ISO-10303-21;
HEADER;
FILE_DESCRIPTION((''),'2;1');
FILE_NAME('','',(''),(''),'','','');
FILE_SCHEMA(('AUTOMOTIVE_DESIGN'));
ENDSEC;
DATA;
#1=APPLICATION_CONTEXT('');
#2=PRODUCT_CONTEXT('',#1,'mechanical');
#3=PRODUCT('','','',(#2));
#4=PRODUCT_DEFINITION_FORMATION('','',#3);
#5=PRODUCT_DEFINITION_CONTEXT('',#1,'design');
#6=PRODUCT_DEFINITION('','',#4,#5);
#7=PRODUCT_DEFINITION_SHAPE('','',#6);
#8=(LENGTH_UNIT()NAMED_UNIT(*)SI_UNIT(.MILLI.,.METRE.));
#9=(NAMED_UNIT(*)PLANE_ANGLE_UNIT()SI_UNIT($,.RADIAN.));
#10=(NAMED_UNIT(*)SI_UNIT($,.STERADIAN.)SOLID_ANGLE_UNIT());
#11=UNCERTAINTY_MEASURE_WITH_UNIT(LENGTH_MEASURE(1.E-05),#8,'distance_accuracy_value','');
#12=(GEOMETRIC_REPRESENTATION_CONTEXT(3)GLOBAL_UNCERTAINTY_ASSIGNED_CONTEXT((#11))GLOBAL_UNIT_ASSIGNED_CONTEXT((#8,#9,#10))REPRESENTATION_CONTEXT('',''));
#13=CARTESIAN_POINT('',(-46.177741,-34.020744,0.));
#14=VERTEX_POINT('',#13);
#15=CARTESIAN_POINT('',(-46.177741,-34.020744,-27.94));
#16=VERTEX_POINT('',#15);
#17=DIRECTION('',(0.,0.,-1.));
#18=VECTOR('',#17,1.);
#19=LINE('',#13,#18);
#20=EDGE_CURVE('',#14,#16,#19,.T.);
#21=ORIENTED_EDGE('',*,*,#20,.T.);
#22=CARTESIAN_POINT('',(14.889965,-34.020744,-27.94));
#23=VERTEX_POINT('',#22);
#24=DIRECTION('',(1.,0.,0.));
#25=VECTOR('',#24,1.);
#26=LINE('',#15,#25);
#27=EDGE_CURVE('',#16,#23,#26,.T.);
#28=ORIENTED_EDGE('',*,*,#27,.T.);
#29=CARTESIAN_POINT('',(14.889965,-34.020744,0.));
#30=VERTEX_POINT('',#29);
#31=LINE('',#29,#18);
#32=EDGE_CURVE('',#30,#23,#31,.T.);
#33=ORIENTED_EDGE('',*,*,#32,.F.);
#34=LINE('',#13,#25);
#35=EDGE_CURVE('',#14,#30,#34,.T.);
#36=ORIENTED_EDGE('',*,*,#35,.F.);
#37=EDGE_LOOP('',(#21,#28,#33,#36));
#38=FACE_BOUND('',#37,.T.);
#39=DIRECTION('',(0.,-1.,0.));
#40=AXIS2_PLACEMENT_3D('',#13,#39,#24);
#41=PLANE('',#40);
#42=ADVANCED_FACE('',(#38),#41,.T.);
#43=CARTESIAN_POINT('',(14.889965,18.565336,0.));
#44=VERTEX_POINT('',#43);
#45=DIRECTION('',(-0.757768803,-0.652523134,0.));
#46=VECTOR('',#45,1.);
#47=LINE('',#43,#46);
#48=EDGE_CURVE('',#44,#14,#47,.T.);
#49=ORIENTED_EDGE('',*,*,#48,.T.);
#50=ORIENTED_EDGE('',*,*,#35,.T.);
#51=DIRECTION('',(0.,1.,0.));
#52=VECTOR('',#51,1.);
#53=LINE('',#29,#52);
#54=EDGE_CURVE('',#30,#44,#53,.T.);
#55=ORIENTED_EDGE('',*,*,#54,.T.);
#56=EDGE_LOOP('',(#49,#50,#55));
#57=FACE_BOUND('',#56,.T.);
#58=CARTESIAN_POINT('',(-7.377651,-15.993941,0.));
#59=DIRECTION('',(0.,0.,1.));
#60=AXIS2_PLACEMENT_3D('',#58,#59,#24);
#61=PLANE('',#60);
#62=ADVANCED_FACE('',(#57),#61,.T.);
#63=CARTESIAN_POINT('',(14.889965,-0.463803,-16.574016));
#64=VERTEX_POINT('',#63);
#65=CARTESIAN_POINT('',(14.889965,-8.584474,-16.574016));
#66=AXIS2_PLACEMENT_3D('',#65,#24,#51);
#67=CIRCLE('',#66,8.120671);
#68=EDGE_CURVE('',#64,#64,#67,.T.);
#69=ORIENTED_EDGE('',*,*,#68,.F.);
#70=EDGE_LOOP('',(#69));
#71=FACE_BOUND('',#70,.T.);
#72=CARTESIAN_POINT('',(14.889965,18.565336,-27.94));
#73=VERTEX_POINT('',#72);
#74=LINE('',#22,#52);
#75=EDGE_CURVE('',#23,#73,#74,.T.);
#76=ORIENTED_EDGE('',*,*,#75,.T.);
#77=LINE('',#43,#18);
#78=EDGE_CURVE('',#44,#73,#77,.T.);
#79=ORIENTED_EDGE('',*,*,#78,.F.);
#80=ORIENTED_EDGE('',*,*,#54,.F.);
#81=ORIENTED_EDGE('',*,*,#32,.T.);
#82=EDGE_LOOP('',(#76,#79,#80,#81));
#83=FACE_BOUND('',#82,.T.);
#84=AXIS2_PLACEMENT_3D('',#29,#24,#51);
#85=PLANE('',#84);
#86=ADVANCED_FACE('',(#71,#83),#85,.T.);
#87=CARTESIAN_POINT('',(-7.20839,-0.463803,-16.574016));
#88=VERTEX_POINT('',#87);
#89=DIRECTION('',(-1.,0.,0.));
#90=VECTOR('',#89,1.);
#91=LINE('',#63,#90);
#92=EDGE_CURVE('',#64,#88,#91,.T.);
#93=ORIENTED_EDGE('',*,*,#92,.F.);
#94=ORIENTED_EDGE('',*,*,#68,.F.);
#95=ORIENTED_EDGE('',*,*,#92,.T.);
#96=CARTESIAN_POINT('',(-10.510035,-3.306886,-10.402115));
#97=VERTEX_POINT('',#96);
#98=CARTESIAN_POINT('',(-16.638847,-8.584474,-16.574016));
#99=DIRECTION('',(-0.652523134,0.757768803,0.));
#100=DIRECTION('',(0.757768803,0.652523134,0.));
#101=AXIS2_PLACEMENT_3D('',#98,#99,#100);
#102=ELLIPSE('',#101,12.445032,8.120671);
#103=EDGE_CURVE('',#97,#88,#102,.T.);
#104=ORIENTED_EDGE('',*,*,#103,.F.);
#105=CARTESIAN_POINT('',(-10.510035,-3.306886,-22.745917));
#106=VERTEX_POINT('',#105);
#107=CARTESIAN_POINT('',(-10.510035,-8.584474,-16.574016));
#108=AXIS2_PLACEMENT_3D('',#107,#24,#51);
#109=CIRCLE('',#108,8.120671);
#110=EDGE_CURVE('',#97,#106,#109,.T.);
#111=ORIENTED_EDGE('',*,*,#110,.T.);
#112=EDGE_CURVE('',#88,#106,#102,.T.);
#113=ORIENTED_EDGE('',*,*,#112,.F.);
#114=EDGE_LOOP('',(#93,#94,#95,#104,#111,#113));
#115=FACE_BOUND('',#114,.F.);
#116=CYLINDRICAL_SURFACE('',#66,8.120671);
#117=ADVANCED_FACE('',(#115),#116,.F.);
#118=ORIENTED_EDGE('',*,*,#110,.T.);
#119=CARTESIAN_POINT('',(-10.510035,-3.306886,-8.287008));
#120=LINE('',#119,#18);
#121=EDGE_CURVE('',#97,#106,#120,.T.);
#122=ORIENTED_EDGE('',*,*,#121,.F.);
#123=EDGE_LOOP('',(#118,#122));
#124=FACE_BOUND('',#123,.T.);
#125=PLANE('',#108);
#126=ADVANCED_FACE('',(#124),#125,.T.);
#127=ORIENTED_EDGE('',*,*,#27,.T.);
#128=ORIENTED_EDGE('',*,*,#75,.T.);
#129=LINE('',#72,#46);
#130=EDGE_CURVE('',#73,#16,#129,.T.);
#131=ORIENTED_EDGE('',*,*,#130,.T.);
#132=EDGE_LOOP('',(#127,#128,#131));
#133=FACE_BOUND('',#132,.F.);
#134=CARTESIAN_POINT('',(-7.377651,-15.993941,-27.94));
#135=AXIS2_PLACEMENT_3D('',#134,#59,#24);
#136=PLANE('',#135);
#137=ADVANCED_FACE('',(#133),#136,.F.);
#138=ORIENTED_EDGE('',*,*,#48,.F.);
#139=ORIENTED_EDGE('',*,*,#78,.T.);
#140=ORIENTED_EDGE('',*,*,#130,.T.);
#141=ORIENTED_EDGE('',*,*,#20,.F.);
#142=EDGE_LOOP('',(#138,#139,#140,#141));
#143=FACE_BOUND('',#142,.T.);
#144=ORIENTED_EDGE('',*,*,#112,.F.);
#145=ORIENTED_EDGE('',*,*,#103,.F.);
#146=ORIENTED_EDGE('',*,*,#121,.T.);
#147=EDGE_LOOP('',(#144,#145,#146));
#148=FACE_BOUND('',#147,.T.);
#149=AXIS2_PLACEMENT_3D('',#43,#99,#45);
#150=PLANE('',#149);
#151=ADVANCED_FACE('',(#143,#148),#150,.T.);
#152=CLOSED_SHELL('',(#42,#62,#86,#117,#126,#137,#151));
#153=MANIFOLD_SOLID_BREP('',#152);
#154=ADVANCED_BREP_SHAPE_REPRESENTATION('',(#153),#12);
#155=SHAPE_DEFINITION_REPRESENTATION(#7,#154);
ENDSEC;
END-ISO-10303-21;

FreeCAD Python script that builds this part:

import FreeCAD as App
import Part
import Sketcher
from FreeCAD import Vector

doc = App.newDocument("Part")
params = doc.addObject("Spreadsheet::Sheet", "Params")
for row, (alias, value) in enumerate([
    ("pad1_length", "1.1 in"),
    ("pocket1_length", "1 in"),
], start=1):
    params.set(f"A{row}", alias)
    params.set(f"B{row}", "=" + value)
    params.setAlias(f"B{row}", alias)

body = doc.addObject("PartDesign::Body", "Body")

# Sketch on XY plane
sketch1 = doc.addObject("Sketcher::SketchObject", "Sketch")
body.addObject(sketch1)
sketch1.AttachmentSupport = (doc.XY_Plane, [""])
sketch1.MapMode = "FlatFace"
sketch1.addGeometry(Part.LineSegment(Vector(14.889965, 18.565336, 0), Vector(-46.177741, -34.020744, 0)), False)
sketch1.addGeometry(Part.LineSegment(Vector(-46.177741, -34.020744, 0), Vector(14.889965, -34.020744, 0)), False)
sketch1.addGeometry(Part.LineSegment(Vector(14.889965, -34.020744, 0), Vector(14.889965, 18.565336, 0)), False)
sketch1.addConstraint(Sketcher.Constraint("Coincident", 0, 2, 1, 1))
sketch1.addConstraint(Sketcher.Constraint("Coincident", 1, 2, 2, 1))
sketch1.addConstraint(Sketcher.Constraint("Coincident", 2, 2, 0, 1))
sketch1.addConstraint(Sketcher.Constraint("Horizontal", 1))
sketch1.addConstraint(Sketcher.Constraint("Vertical", 2))
sketch1.addConstraint(Sketcher.Constraint("DistanceY", 2, 1, 2, 2, 52.58608))
sketch1.addConstraint(Sketcher.Constraint("DistanceX", 1, 1, 1, 2, 61.067706))
sketch1.addConstraint(Sketcher.Constraint("DistanceX", 0, 2, -1, 1, 46.177741))
sketch1.addConstraint(Sketcher.Constraint("DistanceY", 0, 2, -1, 1, 34.020744))
pad1 = doc.addObject("PartDesign::Pad", "Pad")
body.addObject(pad1)
pad1.Profile = sketch1
pad1.setExpression("Length", "Params.pad1_length")
pad1.Reversed = True

# Sketch on YZ plane
sketch2 = doc.addObject("Sketcher::SketchObject", "Sketch001")
body.addObject(sketch2)
sketch2.AttachmentSupport = (doc.YZ_Plane, [""])
sketch2.MapMode = "FlatFace"
sketch2.AttachmentOffset = App.Placement(Vector(0, 0, 14.889965), App.Rotation())
sketch2.addGeometry(Part.Circle(Vector(-8.584474, -16.574016, 0), Vector(0, 0, 1), 8.120671), False)
sketch2.addConstraint(Sketcher.Constraint("Diameter", 0, 16.241342))
sketch2.addConstraint(Sketcher.Constraint("DistanceX", 0, 3, -1, 1, 8.584474))
sketch2.addConstraint(Sketcher.Constraint("DistanceY", 0, 3, -1, 1, 16.574016))
pocket1 = doc.addObject("PartDesign::Pocket", "Pocket")
body.addObject(pocket1)
pocket1.Profile = sketch2
pocket1.setExpression("Length", "Params.pocket1_length")

doc.recompute()
